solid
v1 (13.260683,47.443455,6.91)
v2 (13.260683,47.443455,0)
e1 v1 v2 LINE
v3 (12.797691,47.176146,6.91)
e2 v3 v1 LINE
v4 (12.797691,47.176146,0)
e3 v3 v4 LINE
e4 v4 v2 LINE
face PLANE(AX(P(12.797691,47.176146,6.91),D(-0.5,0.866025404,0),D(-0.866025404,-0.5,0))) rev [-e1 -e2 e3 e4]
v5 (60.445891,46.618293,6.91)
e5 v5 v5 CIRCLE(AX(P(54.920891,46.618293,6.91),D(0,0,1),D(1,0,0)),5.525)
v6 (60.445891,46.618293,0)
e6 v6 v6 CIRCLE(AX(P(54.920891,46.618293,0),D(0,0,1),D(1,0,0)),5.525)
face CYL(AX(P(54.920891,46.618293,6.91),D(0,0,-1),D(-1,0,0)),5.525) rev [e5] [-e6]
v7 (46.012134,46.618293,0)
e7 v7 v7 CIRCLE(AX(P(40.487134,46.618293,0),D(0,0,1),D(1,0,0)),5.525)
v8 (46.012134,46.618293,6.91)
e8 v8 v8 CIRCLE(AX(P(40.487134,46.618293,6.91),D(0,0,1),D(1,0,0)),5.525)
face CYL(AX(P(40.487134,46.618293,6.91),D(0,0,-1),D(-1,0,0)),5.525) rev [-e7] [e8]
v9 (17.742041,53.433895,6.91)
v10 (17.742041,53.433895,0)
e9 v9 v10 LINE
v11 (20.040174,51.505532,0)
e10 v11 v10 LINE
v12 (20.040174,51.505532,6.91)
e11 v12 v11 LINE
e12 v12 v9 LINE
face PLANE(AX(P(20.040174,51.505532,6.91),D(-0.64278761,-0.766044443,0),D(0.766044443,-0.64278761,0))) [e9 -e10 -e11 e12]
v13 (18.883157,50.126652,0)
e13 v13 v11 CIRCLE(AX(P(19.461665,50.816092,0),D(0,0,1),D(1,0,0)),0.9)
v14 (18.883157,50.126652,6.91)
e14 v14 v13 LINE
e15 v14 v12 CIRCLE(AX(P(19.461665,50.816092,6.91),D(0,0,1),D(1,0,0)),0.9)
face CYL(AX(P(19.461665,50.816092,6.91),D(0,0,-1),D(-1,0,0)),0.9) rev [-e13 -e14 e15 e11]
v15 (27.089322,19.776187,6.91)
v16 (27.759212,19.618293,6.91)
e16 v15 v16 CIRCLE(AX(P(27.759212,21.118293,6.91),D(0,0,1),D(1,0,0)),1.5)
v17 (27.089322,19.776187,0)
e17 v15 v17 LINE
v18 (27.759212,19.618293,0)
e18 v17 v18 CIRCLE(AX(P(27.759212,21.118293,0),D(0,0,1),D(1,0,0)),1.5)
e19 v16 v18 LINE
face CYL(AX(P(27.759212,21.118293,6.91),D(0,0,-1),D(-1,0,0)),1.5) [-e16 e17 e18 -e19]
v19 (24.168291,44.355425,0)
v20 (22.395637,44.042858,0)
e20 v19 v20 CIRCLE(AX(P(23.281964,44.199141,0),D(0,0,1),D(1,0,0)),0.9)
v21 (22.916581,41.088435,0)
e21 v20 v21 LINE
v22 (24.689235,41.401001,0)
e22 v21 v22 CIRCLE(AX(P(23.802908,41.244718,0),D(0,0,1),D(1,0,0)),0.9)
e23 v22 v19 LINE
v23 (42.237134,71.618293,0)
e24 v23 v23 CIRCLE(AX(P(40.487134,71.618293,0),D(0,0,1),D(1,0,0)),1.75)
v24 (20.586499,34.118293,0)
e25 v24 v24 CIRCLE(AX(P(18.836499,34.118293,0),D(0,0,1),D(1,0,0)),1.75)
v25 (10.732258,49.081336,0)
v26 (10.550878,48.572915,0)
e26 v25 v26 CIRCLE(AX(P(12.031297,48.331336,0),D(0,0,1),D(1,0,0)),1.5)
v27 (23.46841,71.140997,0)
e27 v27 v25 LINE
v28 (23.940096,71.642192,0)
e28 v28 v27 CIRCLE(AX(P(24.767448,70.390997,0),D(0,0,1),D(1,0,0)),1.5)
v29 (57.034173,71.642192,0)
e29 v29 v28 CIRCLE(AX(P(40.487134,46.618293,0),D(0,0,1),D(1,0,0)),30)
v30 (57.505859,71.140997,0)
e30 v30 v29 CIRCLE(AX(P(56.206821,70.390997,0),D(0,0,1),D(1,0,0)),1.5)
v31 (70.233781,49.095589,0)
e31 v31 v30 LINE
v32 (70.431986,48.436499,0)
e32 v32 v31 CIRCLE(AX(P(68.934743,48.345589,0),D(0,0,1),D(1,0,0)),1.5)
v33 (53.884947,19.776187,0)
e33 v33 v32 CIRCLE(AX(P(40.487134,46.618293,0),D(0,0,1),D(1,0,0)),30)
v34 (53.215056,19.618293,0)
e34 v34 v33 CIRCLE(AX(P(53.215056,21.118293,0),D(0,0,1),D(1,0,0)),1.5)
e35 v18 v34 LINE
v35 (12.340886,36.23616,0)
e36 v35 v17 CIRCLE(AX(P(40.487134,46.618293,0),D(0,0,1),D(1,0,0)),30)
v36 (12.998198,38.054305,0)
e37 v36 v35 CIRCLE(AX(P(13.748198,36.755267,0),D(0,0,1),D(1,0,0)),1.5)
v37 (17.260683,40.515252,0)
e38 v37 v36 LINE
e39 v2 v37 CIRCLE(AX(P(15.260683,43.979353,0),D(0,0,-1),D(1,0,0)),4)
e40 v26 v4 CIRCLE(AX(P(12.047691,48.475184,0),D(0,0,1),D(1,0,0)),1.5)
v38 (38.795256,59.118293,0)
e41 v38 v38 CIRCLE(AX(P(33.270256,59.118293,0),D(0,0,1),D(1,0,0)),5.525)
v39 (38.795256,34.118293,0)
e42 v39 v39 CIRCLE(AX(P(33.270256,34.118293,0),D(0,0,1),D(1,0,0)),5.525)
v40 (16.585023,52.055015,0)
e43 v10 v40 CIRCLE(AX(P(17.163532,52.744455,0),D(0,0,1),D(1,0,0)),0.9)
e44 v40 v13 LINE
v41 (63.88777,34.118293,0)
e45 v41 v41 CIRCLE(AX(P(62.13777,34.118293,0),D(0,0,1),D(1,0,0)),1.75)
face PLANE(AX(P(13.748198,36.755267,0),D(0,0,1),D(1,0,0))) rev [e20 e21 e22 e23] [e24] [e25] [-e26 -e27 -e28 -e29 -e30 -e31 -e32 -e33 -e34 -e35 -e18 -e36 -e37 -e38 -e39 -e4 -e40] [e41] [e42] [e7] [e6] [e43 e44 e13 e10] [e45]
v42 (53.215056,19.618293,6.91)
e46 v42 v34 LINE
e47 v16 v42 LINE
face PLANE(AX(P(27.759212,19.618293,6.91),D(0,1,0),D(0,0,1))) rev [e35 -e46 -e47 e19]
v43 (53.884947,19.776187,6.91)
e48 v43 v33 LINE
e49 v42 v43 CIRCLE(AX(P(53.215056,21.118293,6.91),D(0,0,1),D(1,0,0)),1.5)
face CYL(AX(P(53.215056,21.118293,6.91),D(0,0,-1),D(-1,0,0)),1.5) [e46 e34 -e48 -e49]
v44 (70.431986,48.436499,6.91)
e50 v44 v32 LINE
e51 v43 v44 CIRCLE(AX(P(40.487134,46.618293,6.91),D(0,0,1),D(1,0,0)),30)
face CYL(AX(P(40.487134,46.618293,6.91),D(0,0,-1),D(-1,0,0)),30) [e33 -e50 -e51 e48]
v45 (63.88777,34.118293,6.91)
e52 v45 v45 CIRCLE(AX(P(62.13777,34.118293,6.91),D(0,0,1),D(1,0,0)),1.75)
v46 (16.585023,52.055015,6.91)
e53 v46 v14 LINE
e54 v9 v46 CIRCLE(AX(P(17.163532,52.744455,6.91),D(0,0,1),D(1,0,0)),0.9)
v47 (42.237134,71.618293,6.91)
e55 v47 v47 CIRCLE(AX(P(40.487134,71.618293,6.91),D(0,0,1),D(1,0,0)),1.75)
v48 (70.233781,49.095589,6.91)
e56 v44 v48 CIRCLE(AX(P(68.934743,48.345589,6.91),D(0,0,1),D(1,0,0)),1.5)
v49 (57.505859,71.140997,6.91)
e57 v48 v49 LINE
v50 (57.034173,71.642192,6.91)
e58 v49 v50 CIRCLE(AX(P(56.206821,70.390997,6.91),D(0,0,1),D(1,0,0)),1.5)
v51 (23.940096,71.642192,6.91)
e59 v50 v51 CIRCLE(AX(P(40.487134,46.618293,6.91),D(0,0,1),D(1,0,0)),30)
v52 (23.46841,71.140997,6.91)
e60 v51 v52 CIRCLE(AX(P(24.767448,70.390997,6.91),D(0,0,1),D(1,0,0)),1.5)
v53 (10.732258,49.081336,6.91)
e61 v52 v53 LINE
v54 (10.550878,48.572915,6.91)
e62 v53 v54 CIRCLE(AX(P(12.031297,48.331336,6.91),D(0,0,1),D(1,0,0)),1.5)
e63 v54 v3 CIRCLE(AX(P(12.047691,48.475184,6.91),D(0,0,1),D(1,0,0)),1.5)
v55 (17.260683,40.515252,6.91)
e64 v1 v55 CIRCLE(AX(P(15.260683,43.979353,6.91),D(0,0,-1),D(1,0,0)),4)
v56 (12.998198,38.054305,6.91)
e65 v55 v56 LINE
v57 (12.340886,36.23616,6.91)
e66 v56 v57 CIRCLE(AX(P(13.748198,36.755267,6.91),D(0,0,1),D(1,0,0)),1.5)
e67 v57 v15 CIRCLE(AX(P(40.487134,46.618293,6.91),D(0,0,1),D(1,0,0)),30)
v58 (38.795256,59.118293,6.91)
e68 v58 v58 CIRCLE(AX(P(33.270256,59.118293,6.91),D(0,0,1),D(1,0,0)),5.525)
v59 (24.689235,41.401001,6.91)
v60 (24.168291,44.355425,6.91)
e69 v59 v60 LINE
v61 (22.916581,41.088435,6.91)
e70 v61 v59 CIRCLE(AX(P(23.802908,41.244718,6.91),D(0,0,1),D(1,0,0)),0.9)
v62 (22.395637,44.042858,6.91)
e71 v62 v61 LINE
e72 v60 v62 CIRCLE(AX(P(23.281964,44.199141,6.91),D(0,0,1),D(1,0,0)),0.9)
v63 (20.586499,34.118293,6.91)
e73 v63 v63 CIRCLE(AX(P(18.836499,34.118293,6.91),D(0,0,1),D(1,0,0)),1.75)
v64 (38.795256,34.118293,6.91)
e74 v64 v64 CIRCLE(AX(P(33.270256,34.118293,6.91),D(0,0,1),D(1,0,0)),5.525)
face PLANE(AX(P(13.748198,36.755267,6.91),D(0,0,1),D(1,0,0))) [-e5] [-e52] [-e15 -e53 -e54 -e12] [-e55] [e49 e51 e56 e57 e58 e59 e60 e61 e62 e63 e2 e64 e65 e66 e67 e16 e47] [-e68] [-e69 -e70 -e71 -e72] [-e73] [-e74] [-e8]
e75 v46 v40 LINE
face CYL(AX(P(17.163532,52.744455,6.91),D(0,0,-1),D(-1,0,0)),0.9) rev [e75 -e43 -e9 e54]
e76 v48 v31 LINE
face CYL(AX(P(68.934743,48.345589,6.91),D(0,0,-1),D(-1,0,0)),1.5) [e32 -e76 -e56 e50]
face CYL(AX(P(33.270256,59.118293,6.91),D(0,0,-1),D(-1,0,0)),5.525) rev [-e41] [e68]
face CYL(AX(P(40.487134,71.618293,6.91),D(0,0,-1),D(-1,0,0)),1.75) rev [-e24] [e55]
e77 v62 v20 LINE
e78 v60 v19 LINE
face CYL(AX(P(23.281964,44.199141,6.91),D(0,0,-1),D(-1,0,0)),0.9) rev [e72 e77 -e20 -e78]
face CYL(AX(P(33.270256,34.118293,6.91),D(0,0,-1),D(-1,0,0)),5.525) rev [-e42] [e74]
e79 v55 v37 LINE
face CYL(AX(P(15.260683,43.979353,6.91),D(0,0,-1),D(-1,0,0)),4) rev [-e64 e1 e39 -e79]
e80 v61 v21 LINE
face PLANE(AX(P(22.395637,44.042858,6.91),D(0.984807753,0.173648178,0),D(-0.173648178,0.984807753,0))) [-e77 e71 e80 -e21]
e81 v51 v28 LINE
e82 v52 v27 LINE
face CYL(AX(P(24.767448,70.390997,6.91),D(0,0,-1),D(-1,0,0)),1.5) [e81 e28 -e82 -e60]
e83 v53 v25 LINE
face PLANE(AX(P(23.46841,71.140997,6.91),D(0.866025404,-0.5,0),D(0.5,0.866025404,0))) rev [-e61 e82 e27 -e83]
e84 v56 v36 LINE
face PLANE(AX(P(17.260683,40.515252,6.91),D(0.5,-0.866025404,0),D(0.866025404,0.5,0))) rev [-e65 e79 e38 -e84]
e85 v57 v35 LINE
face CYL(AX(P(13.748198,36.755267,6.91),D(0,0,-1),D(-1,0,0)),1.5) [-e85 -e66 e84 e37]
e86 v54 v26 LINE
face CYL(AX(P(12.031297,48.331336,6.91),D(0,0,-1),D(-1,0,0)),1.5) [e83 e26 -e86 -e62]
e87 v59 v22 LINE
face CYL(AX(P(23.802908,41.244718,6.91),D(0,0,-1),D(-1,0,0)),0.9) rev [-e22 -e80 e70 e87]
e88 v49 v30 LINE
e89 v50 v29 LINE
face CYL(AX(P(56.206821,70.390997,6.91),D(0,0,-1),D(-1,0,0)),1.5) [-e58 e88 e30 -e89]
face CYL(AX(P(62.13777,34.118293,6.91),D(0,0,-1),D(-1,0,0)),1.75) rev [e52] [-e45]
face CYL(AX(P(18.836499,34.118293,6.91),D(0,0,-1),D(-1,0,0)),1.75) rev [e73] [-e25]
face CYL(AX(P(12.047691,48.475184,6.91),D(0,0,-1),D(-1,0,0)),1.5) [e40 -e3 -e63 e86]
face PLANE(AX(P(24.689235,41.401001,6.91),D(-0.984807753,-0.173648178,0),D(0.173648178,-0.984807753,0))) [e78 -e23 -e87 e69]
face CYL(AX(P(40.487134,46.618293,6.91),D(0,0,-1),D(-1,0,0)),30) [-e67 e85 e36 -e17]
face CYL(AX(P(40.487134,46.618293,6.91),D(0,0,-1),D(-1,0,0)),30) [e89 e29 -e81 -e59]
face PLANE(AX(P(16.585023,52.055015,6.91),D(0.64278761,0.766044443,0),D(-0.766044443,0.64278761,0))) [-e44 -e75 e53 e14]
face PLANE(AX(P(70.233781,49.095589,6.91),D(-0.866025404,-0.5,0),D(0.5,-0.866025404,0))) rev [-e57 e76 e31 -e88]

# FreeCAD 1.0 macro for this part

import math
import FreeCAD as App
import Part
import Sketcher
Q = App.Units.Quantity

doc = App.newDocument("Part")
body = doc.addObject("PartDesign::Body", "Body")

sketch1 = body.newObject("Sketcher::SketchObject", "Sketch")
sketch1.AttachmentSupport = (doc.getObject("XY_Plane"), [""])
sketch1.MapMode = "FlatFace"
sketch1.addGeometry(Part.LineSegment(App.Vector(27.8, 19.6, 0), App.Vector(53.2, 19.6, 0)), False)
sketch1.addGeometry(Part.ArcOfCircle(Part.Circle(App.Vector(53.2, 21.1, 0), App.Vector(0, 0, 1), 1.5), math.radians(-90), math.radians(-63)), False)
sketch1.addGeometry(Part.ArcOfCircle(Part.Circle(App.Vector(40.5, 46.6, 0), App.Vector(0, 0, 1), 30), math.radians(-63), math.radians(3)), False)
sketch1.addGeometry(Part.ArcOfCircle(Part.Circle(App.Vector(68.9, 48.3, 0), App.Vector(0, 0, 1), 1.5), math.radians(3), math.radians(30)), False)
sketch1.addGeometry(Part.LineSegment(App.Vector(70.2, 49.1, 0), App.Vector(57.5, 71.1, 0)), False)
sketch1.addGeometry(Part.ArcOfCircle(Part.Circle(App.Vector(56.2, 70.4, 0), App.Vector(0, 0, 1), 1.5), math.radians(30), math.radians(57)), False)
sketch1.addGeometry(Part.ArcOfCircle(Part.Circle(App.Vector(40.5, 46.6, 0), App.Vector(0, 0, 1), 30), math.radians(57), math.radians(123)), False)
sketch1.addGeometry(Part.ArcOfCircle(Part.Circle(App.Vector(24.8, 70.4, 0), App.Vector(0, 0, 1), 1.5), math.radians(123), math.radians(150)), False)
sketch1.addGeometry(Part.LineSegment(App.Vector(23.5, 71.1, 0), App.Vector(10.7, 49.1, 0)), False)
sketch1.addGeometry(Part.ArcOfCircle(Part.Circle(App.Vector(12, 48.3, 0), App.Vector(0, 0, 1), 1.5), math.radians(150), math.radians(171)), False)
sketch1.addGeometry(Part.ArcOfCircle(Part.Circle(App.Vector(12, 48.5, 0), App.Vector(0, 0, 1), 1.5), math.radians(176), math.radians(300)), False)
sketch1.addGeometry(Part.LineSegment(App.Vector(12.8, 47.2, 0), App.Vector(13.3, 47.4, 0)), False)
sketch1.addGeometry(Part.ArcOfCircle(Part.Circle(App.Vector(15.3, 44, 0), App.Vector(0, 0, 1), 4), math.radians(-60), math.radians(120)), False)
sketch1.addGeometry(Part.LineSegment(App.Vector(17.3, 40.5, 0), App.Vector(13, 38.1, 0)), False)
sketch1.addGeometry(Part.ArcOfCircle(Part.Circle(App.Vector(13.7, 36.8, 0), App.Vector(0, 0, 1), 1.5), math.radians(120), math.radians(200)), False)
sketch1.addGeometry(Part.ArcOfCircle(Part.Circle(App.Vector(40.5, 46.6, 0), App.Vector(0, 0, 1), 30), math.radians(-160), math.radians(-117)), False)
sketch1.addGeometry(Part.ArcOfCircle(Part.Circle(App.Vector(27.8, 21.1, 0), App.Vector(0, 0, 1), 1.5), math.radians(-117), math.radians(-90)), False)
sketch1.addGeometry(Part.Circle(App.Vector(18.8, 34.1, 0), App.Vector(0, 0, 1), 1.8), False)
sketch1.addGeometry(Part.Circle(App.Vector(33.3, 34.1, 0), App.Vector(0, 0, 1), 5.5), False)
sketch1.addGeometry(Part.LineSegment(App.Vector(24.2, 44.4, 0), App.Vector(24.7, 41.4, 0)), False)
sketch1.addGeometry(Part.ArcOfCircle(Part.Circle(App.Vector(23.8, 41.2, 0), App.Vector(0, 0, 1), 0.9), math.radians(-170), math.radians(10)), False)
sketch1.addGeometry(Part.LineSegment(App.Vector(22.9, 41.1, 0), App.Vector(22.4, 44, 0)), False)
sketch1.addGeometry(Part.ArcOfCircle(Part.Circle(App.Vector(23.3, 44.2, 0), App.Vector(0, 0, 1), 0.9), math.radians(10), math.radians(190)), False)
sketch1.addGeometry(Part.Circle(App.Vector(62.1, 34.1, 0), App.Vector(0, 0, 1), 1.8), False)
sketch1.addGeometry(Part.Circle(App.Vector(40.5, 46.6, 0), App.Vector(0, 0, 1), 5.5), False)
sketch1.addGeometry(Part.Circle(App.Vector(54.9, 46.6, 0), App.Vector(0, 0, 1), 5.5), False)
sketch1.addGeometry(Part.LineSegment(App.Vector(17.7, 53.4, 0), App.Vector(20, 51.5, 0)), False)
sketch1.addGeometry(Part.ArcOfCircle(Part.Circle(App.Vector(19.5, 50.8, 0), App.Vector(0, 0, 1), 0.9), math.radians(-130), math.radians(50)), False)
sketch1.addGeometry(Part.LineSegment(App.Vector(18.9, 50.1, 0), App.Vector(16.6, 52.1, 0)), False)
sketch1.addGeometry(Part.ArcOfCircle(Part.Circle(App.Vector(17.2, 52.7, 0), App.Vector(0, 0, 1), 0.9), math.radians(50), math.radians(230)), False)
sketch1.addGeometry(Part.Circle(App.Vector(33.3, 59.1, 0), App.Vector(0, 0, 1), 5.5), False)
sketch1.addGeometry(Part.Circle(App.Vector(40.5, 71.6, 0), App.Vector(0, 0, 1), 1.8), False)
sketch1.addConstraint(Sketcher.Constraint("Tangent", 0, 2, 1, 1))
sketch1.addConstraint(Sketcher.Constraint("Tangent", 1, 2, 2, 1))
sketch1.addConstraint(Sketcher.Constraint("Tangent", 2, 2, 3, 1))
sketch1.addConstraint(Sketcher.Constraint("Tangent", 3, 2, 4, 1))
sketch1.addConstraint(Sketcher.Constraint("Tangent", 4, 2, 5, 1))
sketch1.addConstraint(Sketcher.Constraint("Tangent", 5, 2, 6, 1))
sketch1.addConstraint(Sketcher.Constraint("Tangent", 6, 2, 7, 1))
sketch1.addConstraint(Sketcher.Constraint("Tangent", 7, 2, 8, 1))
sketch1.addConstraint(Sketcher.Constraint("Tangent", 8, 2, 9, 1))
sketch1.addConstraint(Sketcher.Constraint("Coincident", 9, 2, 10, 1))
sketch1.addConstraint(Sketcher.Constraint("Tangent", 10, 2, 11, 1))
sketch1.addConstraint(Sketcher.Constraint("Tangent", 11, 2, 12, 2))
sketch1.addConstraint(Sketcher.Constraint("Tangent", 12, 1, 13, 1))
sketch1.addConstraint(Sketcher.Constraint("Tangent", 13, 2, 14, 1))
sketch1.addConstraint(Sketcher.Constraint("Tangent", 14, 2, 15, 1))
sketch1.addConstraint(Sketcher.Constraint("Tangent", 15, 2, 16, 1))
sketch1.addConstraint(Sketcher.Constraint("Tangent", 16, 2, 0, 1))
sketch1.addConstraint(Sketcher.Constraint("Tangent", 19, 2, 20, 2))
sketch1.addConstraint(Sketcher.Constraint("Tangent", 20, 1, 21, 1))
sketch1.addConstraint(Sketcher.Constraint("Tangent", 21, 2, 22, 2))
sketch1.addConstraint(Sketcher.Constraint("Tangent", 22, 1, 19, 1))
sketch1.addConstraint(Sketcher.Constraint("Tangent", 26, 2, 27, 2))
sketch1.addConstraint(Sketcher.Constraint("Tangent", 27, 1, 28, 1))
sketch1.addConstraint(Sketcher.Constraint("Tangent", 28, 2, 29, 2))
sketch1.addConstraint(Sketcher.Constraint("Tangent", 29, 1, 26, 1))
sketch1.addConstraint(Sketcher.Constraint("Horizontal", 0))
sketch1.addConstraint(Sketcher.Constraint("Coincident", 6, 3, 2, 3))
sketch1.addConstraint(Sketcher.Constraint("Coincident", 15, 3, 2, 3))
sketch1.addConstraint(Sketcher.Constraint("Coincident", 24, 3, 2, 3))
sketch1.addConstraint(Sketcher.Constraint("Equal", 1, 3))
sketch1.addConstraint(Sketcher.Constraint("Equal", 3, 5))
sketch1.addConstraint(Sketcher.Constraint("Equal", 2, 6))
sketch1.addConstraint(Sketcher.Constraint("Equal", 5, 7))
sketch1.addConstraint(Sketcher.Constraint("Equal", 7, 9))
sketch1.addConstraint(Sketcher.Constraint("Equal", 9, 10))
sketch1.addConstraint(Sketcher.Constraint("Equal", 10, 14))
sketch1.addConstraint(Sketcher.Constraint("Equal", 6, 15))
sketch1.addConstraint(Sketcher.Constraint("Equal", 14, 16))
sketch1.addConstraint(Sketcher.Constraint("Equal", 20, 22))
sketch1.addConstraint(Sketcher.Constraint("Equal", 17, 23))
sketch1.addConstraint(Sketcher.Constraint("Equal", 18, 24))
sketch1.addConstraint(Sketcher.Constraint("Equal", 24, 25))
sketch1.addConstraint(Sketcher.Constraint("Equal", 22, 27))
sketch1.addConstraint(Sketcher.Constraint("Equal", 27, 29))
sketch1.addConstraint(Sketcher.Constraint("Equal", 25, 30))
sketch1.addConstraint(Sketcher.Constraint("Equal", 23, 31))
sketch1.addConstraint(Sketcher.Constraint("Perpendicular", 4, 11))
sketch1.addConstraint(Sketcher.Constraint("Parallel", 11, 13))
sketch1.addConstraint(Sketcher.Constraint("Horizontal", 5, 3, 7, 3))
sketch1.addConstraint(Sketcher.Constraint("Horizontal", 17, 3, 18, 3))
sketch1.addConstraint(Sketcher.Constraint("Horizontal", 18, 3, 23, 3))
sketch1.addConstraint(Sketcher.Constraint("Horizontal", 24, 3, 25, 3))
sketch1.addConstraint(Sketcher.Constraint("Horizontal", 4, 2, 7, 2))
sketch1.addConstraint(Sketcher.Constraint("Vertical", 18, 3, 30, 3))
sketch1.addConstraint(Sketcher.Constraint("Vertical", 24, 3, 31, 3))
sketch1.addConstraint(Sketcher.Constraint("Equal", 21, 26))
sketch1.addConstraint(Sketcher.Constraint("Radius", 2, 30.0))
sketch1.addConstraint(Sketcher.Constraint("Radius", 12, 4.0))
sketch1.addConstraint(Sketcher.Constraint("Diameter", 17, 3.5))
sketch1.addConstraint(Sketcher.Constraint("Radius", 1, 1.5))
sketch1.addConstraint(Sketcher.Constraint("Radius", 20, 0.9))
sketch1.addConstraint(Sketcher.Constraint("Diameter", 18, 11.05))
sketch1.addConstraint(Sketcher.Constraint("Angle", 4, Q("120 deg")))
sketch1.addConstraint(Sketcher.Constraint("Angle", 19, Q("-80 deg")))
sketch1.addConstraint(Sketcher.Constraint("Angle", 26, Q("-40 deg")))
sketch1.addConstraint(Sketcher.Constraint("Distance", 19, 3.0))
sketch1.addConstraint(Sketcher.Constraint("DistanceY", 16, 3, 17, 3, 13.0))
sketch1.addConstraint(Sketcher.Constraint("DistanceY", 6, 3, 31, 3, 25.0))
sketch1.addConstraint(Sketcher.Constraint("DistanceY", 0, 2, 25, 3, 27.0))
sketch1.addConstraint(Sketcher.Constraint("DistanceY", 6, 3, 30, 3, 12.5))
sketch1.addConstraint(Sketcher.Constraint("DistanceY", -1, 1, 19, 2, 41.401001))
sketch1.addConstraint(Sketcher.Constraint("DistanceX", -1, 1, 14, 3, 13.748198))
sketch1.addConstraint(Sketcher.Constraint("DistanceX", -1, 1, 17, 3, 18.836499))
sketch1.addConstraint(Sketcher.Constraint("DistanceY", -1, 1, 2, 2, 48.436499))
sketch1.addConstraint(Sketcher.Constraint("DistanceX", 9, 3, 14, 3, 1.716901))
sketch1.addConstraint(Sketcher.Constraint("DistanceX", 27, 3, 22, 3, 3.820298))
sketch1.addConstraint(Sketcher.Constraint("DistanceY", 12, 3, 29, 3, 8.765101))
sketch1.addConstraint(Sketcher.Constraint("DistanceX", 18, 3, 0, 2, 19.9448))
sketch1.addConstraint(Sketcher.Constraint("DistanceY", 31, 3, 5, 2, 0.023899))
sketch1.addConstraint(Sketcher.Constraint("DistanceY", 27, 3, 6, 2, 20.8261))
sketch1.addConstraint(Sketcher.Constraint("DistanceX", -1, 1, 5, 3, 56.206821))
sketch1.addConstraint(Sketcher.Constraint("DistanceX", -1, 1, 10, 3, 12.047691))
sketch1.addConstraint(Sketcher.Constraint("DistanceX", -1, 1, 20, 3, 23.802908))
sketch1.addConstraint(Sketcher.Constraint("DistanceX", -1, 1, 23, 3, 62.13777))
sketch1.addConstraint(Sketcher.Constraint("DistanceX", -1, 1, 25, 3, 54.920891))
pad1 = body.newObject("PartDesign::Pad", "Pad")
pad1.Profile = sketch1
pad1.Length = 6.91

doc.recompute()
